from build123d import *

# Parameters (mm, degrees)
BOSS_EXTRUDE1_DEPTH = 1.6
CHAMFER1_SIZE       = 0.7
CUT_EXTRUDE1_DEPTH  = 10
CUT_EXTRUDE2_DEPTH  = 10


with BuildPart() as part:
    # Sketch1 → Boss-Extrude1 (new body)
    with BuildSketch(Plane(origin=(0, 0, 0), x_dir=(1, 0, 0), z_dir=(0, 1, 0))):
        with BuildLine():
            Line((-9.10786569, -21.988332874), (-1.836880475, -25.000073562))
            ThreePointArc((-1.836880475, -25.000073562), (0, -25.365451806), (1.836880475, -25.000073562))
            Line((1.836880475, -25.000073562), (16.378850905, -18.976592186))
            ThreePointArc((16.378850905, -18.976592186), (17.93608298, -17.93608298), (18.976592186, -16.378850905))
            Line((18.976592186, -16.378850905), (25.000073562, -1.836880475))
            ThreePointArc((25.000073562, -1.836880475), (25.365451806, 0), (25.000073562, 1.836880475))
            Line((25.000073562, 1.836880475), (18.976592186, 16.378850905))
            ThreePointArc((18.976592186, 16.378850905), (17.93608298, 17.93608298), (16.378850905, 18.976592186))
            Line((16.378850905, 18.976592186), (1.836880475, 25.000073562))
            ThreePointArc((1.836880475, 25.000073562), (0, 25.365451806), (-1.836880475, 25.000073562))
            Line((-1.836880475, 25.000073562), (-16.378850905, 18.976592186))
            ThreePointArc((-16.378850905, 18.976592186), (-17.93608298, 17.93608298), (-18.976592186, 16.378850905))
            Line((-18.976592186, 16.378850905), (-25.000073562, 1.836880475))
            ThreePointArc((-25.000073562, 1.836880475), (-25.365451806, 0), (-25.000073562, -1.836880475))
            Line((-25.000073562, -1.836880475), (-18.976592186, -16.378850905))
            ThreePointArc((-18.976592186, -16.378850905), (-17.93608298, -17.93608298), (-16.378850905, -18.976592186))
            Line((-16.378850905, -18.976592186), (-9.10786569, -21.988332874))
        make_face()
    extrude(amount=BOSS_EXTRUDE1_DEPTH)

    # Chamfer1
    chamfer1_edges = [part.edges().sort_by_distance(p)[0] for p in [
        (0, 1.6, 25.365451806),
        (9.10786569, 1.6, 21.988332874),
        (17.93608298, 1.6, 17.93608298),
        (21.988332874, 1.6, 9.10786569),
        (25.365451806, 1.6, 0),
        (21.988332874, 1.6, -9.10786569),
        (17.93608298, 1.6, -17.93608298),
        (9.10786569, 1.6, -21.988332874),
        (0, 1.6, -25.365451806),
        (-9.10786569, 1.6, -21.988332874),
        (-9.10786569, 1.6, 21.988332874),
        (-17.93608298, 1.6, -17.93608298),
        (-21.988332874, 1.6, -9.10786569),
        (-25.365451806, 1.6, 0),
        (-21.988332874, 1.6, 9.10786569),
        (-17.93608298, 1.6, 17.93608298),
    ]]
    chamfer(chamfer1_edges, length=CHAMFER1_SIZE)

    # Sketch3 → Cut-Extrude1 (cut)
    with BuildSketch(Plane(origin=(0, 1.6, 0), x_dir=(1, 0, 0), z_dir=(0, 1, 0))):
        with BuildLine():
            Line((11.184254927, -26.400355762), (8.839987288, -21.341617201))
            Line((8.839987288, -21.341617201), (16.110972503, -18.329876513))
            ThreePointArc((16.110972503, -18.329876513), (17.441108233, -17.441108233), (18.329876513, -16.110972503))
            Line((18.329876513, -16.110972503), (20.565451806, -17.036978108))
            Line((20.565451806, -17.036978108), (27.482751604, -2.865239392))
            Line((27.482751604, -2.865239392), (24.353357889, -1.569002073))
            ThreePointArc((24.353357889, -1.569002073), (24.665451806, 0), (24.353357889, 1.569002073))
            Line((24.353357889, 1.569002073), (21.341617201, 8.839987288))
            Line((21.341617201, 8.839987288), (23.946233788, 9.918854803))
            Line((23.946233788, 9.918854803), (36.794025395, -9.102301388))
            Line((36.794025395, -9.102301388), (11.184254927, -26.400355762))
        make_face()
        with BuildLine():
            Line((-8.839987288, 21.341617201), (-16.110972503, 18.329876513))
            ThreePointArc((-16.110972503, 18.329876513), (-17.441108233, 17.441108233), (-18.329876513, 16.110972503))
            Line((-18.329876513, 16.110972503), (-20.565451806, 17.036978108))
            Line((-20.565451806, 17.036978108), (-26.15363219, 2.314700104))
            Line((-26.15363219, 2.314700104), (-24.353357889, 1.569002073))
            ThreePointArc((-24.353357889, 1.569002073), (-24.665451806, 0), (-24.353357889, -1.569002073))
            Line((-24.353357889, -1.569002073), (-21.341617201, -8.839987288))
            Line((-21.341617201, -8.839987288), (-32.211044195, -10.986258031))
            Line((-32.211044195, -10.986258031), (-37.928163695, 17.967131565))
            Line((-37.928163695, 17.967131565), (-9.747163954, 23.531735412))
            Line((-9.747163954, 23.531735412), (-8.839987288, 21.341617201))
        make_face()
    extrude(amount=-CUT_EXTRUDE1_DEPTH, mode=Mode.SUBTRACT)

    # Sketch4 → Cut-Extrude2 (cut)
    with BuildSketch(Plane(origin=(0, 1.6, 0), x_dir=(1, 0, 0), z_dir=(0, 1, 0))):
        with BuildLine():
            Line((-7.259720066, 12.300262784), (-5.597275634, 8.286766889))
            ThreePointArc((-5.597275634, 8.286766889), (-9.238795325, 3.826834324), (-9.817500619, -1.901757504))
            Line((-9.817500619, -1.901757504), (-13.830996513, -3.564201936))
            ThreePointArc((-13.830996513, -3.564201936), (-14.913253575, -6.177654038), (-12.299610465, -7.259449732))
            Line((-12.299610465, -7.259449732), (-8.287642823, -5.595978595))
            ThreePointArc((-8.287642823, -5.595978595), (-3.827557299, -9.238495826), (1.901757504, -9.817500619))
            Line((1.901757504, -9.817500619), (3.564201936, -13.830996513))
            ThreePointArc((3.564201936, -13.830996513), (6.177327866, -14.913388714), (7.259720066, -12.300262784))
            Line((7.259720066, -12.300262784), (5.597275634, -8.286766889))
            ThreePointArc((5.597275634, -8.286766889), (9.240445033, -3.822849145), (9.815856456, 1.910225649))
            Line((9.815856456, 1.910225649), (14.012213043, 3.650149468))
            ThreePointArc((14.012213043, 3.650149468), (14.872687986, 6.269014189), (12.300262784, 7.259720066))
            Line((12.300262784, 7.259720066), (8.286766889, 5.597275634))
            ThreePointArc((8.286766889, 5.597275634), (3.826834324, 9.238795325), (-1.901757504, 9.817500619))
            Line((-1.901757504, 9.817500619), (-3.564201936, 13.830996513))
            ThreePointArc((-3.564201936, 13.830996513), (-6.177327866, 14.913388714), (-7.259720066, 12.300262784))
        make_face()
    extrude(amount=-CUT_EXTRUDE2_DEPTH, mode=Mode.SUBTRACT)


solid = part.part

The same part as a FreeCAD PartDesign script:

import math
import FreeCAD as App
import Part
import Sketcher
from FreeCAD import Vector
Q = App.Units.Quantity


def edges_at(feature, points):
    """Names of the edges that pass closest to the given points."""
    edges = feature.Shape.Edges
    near = lambda p: min(range(len(edges)), key=lambda i: edges[i].distToShape(Part.Vertex(*p))[0])
    return sorted({f"Edge{near(p) + 1}" for p in points})

doc = App.newDocument("Part")
body = doc.addObject("PartDesign::Body", "Body")

# Sketch on XZ plane
sketch1 = body.newObject("Sketcher::SketchObject", "Sketch")
sketch1.AttachmentSupport = (doc.getObject("XZ_Plane"), [""])
sketch1.MapMode = "FlatFace"
sketch1.addGeometry(Part.ArcOfCircle(Part.Circle(Vector(0, 20.6, 0), Vector(0, 0, 1), 4.8), math.radians(67), math.radians(113)), False)
sketch1.addGeometry(Part.LineSegment(Vector(1.8, 25, 0), Vector(16.4, 19, 0)), False)
sketch1.addGeometry(Part.ArcOfCircle(Part.Circle(Vector(14.5, 14.5, 0), Vector(0, 0, 1), 4.8), math.radians(22), math.radians(68)), False)
sketch1.addGeometry(Part.LineSegment(Vector(19, 16.4, 0), Vector(25, 1.8, 0)), False)
sketch1.addGeometry(Part.ArcOfCircle(Part.Circle(Vector(20.6, 0, 0), Vector(0, 0, 1), 4.8), math.radians(-23), math.radians(23)), False)
sketch1.addGeometry(Part.LineSegment(Vector(25, -1.8, 0), Vector(19, -16.4, 0)), False)
sketch1.addGeometry(Part.ArcOfCircle(Part.Circle(Vector(14.5, -14.5, 0), Vector(0, 0, 1), 4.8), math.radians(-68), math.radians(-22)), False)
sketch1.addGeometry(Part.LineSegment(Vector(16.4, -19, 0), Vector(1.8, -25, 0)), False)
sketch1.addGeometry(Part.ArcOfCircle(Part.Circle(Vector(0, -20.6, 0), Vector(0, 0, 1), 4.8), math.radians(-113), math.radians(-67)), False)
sketch1.addGeometry(Part.LineSegment(Vector(-1.8, -25, 0), Vector(-16.4, -19, 0)), False)
sketch1.addGeometry(Part.ArcOfCircle(Part.Circle(Vector(-14.5, -14.5, 0), Vector(0, 0, 1), 4.8), math.radians(-158), math.radians(-112)), False)
sketch1.addGeometry(Part.LineSegment(Vector(-19, -16.4, 0), Vector(-25, -1.8, 0)), False)
sketch1.addGeometry(Part.ArcOfCircle(Part.Circle(Vector(-20.6, 0, 0), Vector(0, 0, 1), 4.8), math.radians(157), math.radians(203)), False)
sketch1.addGeometry(Part.LineSegment(Vector(-25, 1.8, 0), Vector(-19, 16.4, 0)), False)
sketch1.addGeometry(Part.ArcOfCircle(Part.Circle(Vector(-14.5, 14.5, 0), Vector(0, 0, 1), 4.8), math.radians(112), math.radians(158)), False)
sketch1.addGeometry(Part.LineSegment(Vector(-16.4, 19, 0), Vector(-1.8, 25, 0)), False)
sketch1.addConstraint(Sketcher.Constraint("Tangent", 0, 1, 1, 1))
sketch1.addConstraint(Sketcher.Constraint("Tangent", 1, 2, 2, 2))
sketch1.addConstraint(Sketcher.Constraint("Tangent", 2, 1, 3, 1))
sketch1.addConstraint(Sketcher.Constraint("Tangent", 3, 2, 4, 2))
sketch1.addConstraint(Sketcher.Constraint("Tangent", 4, 1, 5, 1))
sketch1.addConstraint(Sketcher.Constraint("Tangent", 5, 2, 6, 2))
sketch1.addConstraint(Sketcher.Constraint("Tangent", 6, 1, 7, 1))
sketch1.addConstraint(Sketcher.Constraint("Tangent", 7, 2, 8, 2))
sketch1.addConstraint(Sketcher.Constraint("Tangent", 8, 1, 9, 1))
sketch1.addConstraint(Sketcher.Constraint("Tangent", 9, 2, 10, 2))
sketch1.addConstraint(Sketcher.Constraint("Tangent", 10, 1, 11, 1))
sketch1.addConstraint(Sketcher.Constraint("Tangent", 11, 2, 12, 2))
sketch1.addConstraint(Sketcher.Constraint("Tangent", 12, 1, 13, 1))
sketch1.addConstraint(Sketcher.Constraint("Tangent", 13, 2, 14, 2))
sketch1.addConstraint(Sketcher.Constraint("Tangent", 14, 1, 15, 1))
sketch1.addConstraint(Sketcher.Constraint("Tangent", 15, 2, 0, 2))
sketch1.addConstraint(Sketcher.Constraint("Equal", 0, 2))
sketch1.addConstraint(Sketcher.Constraint("Equal", 2, 4))
sketch1.addConstraint(Sketcher.Constraint("Equal", 4, 6))
sketch1.addConstraint(Sketcher.Constraint("Equal", 6, 8))
sketch1.addConstraint(Sketcher.Constraint("Equal", 8, 10))
sketch1.addConstraint(Sketcher.Constraint("Equal", 10, 12))
sketch1.addConstraint(Sketcher.Constraint("Equal", 12, 14))
sketch1.addConstraint(Sketcher.Constraint("Symmetric", 0, 3, 8, 3, -1, 1))
sketch1.addConstraint(Sketcher.Constraint("Symmetric", 2, 3, 10, 3, -1, 1))
sketch1.addConstraint(Sketcher.Constraint("Symmetric", 4, 3, 12, 3, -1, 1))
sketch1.addConstraint(Sketcher.Constraint("Symmetric", 6, 3, 14, 3, -1, 1))
sketch1.addConstraint(Sketcher.Constraint("Symmetric", 6, 3, 10, 3, -2))
sketch1.addConstraint(Sketcher.Constraint("PointOnObject", 0, 3, -2))
sketch1.addConstraint(Sketcher.Constraint("PointOnObject", 4, 3, -1))
sketch1.addConstraint(Sketcher.Constraint("Perpendicular", 1, 5))
sketch1.addConstraint(Sketcher.Constraint("Equal", 1, 3))
sketch1.addConstraint(Sketcher.Constraint("Radius", 0, 4.8))
sketch1.addConstraint(Sketcher.Constraint("Angle", 1, Q("-22.5 deg")))
sketch1.addConstraint(Sketcher.Constraint("DistanceX", 1, 2, 4, 3, 4.186601))
pad1 = body.newObject("PartDesign::Pad", "Pad")
pad1.Profile = sketch1
pad1.Length = 1.6
pad1.Reversed = True
doc.recompute()

chamfer = body.newObject("PartDesign::Chamfer", "Chamfer")
chamfer.Base = (pad1, edges_at(pad1, [
    (0, 1.6, 25.365),
    (9.108, 1.6, 21.988),
    (17.936, 1.6, 17.936),
    (21.988, 1.6, 9.108),
    (25.365, 1.6, 0),
    (21.988, 1.6, -9.108),
    (17.936, 1.6, -17.936),
    (9.108, 1.6, -21.988),
    (0, 1.6, -25.365),
    (-9.108, 1.6, -21.988),
    (-9.108, 1.6, 21.988),
    (-17.936, 1.6, -17.936),
    (-21.988, 1.6, -9.108),
    (-25.365, 1.6, 0),
    (-21.988, 1.6, 9.108),
    (-17.936, 1.6, 17.936),
]))
chamfer.Size = 0.7

# Sketch on XZ plane
sketch2 = body.newObject("Sketcher::SketchObject", "Sketch001")
sketch2.AttachmentSupport = (doc.getObject("XZ_Plane"), [""])
sketch2.MapMode = "FlatFace"
sketch2.AttachmentOffset = App.Placement(Vector(0, 0, -1.6), App.Rotation())
sketch2.addGeometry(Part.LineSegment(Vector(8.8, 21.3, 0), Vector(11.2, 26.4, 0)), False)
sketch2.addGeometry(Part.LineSegment(Vector(11.2, 26.4, 0), Vector(36.8, 9.1, 0)), False)
sketch2.addGeometry(Part.LineSegment(Vector(36.8, 9.1, 0), Vector(23.9, -9.9, 0)), False)
sketch2.addGeometry(Part.LineSegment(Vector(23.9, -9.9, 0), Vector(21.3, -8.8, 0)), False)
sketch2.addGeometry(Part.LineSegment(Vector(21.3, -8.8, 0), Vector(24.4, -1.6, 0)), False)
sketch2.addGeometry(Part.ArcOfCircle(Part.Circle(Vector(20.6, 0, 0), Vector(0, 0, 1), 4.1), math.radians(-23), math.radians(23)), False)
sketch2.addGeometry(Part.LineSegment(Vector(24.4, 1.6, 0), Vector(27.5, 2.9, 0)), False)
sketch2.addGeometry(Part.LineSegment(Vector(27.5, 2.9, 0), Vector(20.6, 17, 0)), False)
sketch2.addGeometry(Part.LineSegment(Vector(20.6, 17, 0), Vector(18.3, 16.1, 0)), False)
sketch2.addGeometry(Part.ArcOfCircle(Part.Circle(Vector(14.5, 14.5, 0), Vector(0, 0, 1), 4.1), math.radians(22), math.radians(68)), False)
sketch2.addGeometry(Part.LineSegment(Vector(16.1, 18.3, 0), Vector(8.8, 21.3, 0)), False)
sketch2.addGeometry(Part.LineSegment(Vector(-16.1, -18.3, 0), Vector(-8.8, -21.3, 0)), False)
sketch2.addGeometry(Part.LineSegment(Vector(-8.8, -21.3, 0), Vector(-9.7, -23.5, 0)), False)
sketch2.addGeometry(Part.LineSegment(Vector(-9.7, -23.5, 0), Vector(-37.9, -18, 0)), False)
sketch2.addGeometry(Part.LineSegment(Vector(-37.9, -18, 0), Vector(-32.2, 11, 0)), False)
sketch2.addGeometry(Part.LineSegment(Vector(-32.2, 11, 0), Vector(-21.3, 8.8, 0)), False)
sketch2.addGeometry(Part.LineSegment(Vector(-21.3, 8.8, 0), Vector(-24.4, 1.6, 0)), False)
sketch2.addGeometry(Part.ArcOfCircle(Part.Circle(Vector(-20.6, 0, 0), Vector(0, 0, 1), 4.1), math.radians(157), math.radians(203)), False)
sketch2.addGeometry(Part.LineSegment(Vector(-24.4, -1.6, 0), Vector(-26.2, -2.3, 0)), False)
sketch2.addGeometry(Part.LineSegment(Vector(-26.2, -2.3, 0), Vector(-20.6, -17, 0)), False)
sketch2.addGeometry(Part.LineSegment(Vector(-20.6, -17, 0), Vector(-18.3, -16.1, 0)), False)
sketch2.addGeometry(Part.ArcOfCircle(Part.Circle(Vector(-14.5, -14.5, 0), Vector(0, 0, 1), 4.1), math.radians(-158), math.radians(-112)), False)
sketch2.addConstraint(Sketcher.Constraint("Coincident", 0, 2, 1, 1))
sketch2.addConstraint(Sketcher.Constraint("Coincident", 1, 2, 2, 1))
sketch2.addConstraint(Sketcher.Constraint("Coincident", 2, 2, 3, 1))
sketch2.addConstraint(Sketcher.Constraint("Coincident", 3, 2, 4, 1))
sketch2.addConstraint(Sketcher.Constraint("Tangent", 4, 2, 5, 1))
sketch2.addConstraint(Sketcher.Constraint("Coincident", 5, 2, 6, 1))
sketch2.addConstraint(Sketcher.Constraint("Coincident", 6, 2, 7, 1))
sketch2.addConstraint(Sketcher.Constraint("Coincident", 7, 2, 8, 1))
sketch2.addConstraint(Sketcher.Constraint("Coincident", 8, 2, 9, 1))
sketch2.addConstraint(Sketcher.Constraint("Tangent", 9, 2, 10, 1))
sketch2.addConstraint(Sketcher.Constraint("Coincident", 10, 2, 0, 1))
sketch2.addConstraint(Sketcher.Constraint("Coincident", 11, 2, 12, 1))
sketch2.addConstraint(Sketcher.Constraint("Coincident", 12, 2, 13, 1))
sketch2.addConstraint(Sketcher.Constraint("Coincident", 13, 2, 14, 1))
sketch2.addConstraint(Sketcher.Constraint("Coincident", 14, 2, 15, 1))
sketch2.addConstraint(Sketcher.Constraint("Coincident", 15, 2, 16, 1))
sketch2.addConstraint(Sketcher.Constraint("Tangent", 16, 2, 17, 1))
sketch2.addConstraint(Sketcher.Constraint("Coincident", 17, 2, 18, 1))
sketch2.addConstraint(Sketcher.Constraint("Coincident", 18, 2, 19, 1))
sketch2.addConstraint(Sketcher.Constraint("Coincident", 19, 2, 20, 1))
sketch2.addConstraint(Sketcher.Constraint("Coincident", 20, 2, 21, 1))
sketch2.addConstraint(Sketcher.Constraint("Tangent", 21, 2, 11, 1))
sketch2.addConstraint(Sketcher.Constraint("Equal", 5, 9))
sketch2.addConstraint(Sketcher.Constraint("Equal", 9, 17))
sketch2.addConstraint(Sketcher.Constraint("Equal", 17, 21))
sketch2.addConstraint(Sketcher.Constraint("Symmetric", 5, 3, 17, 3, -1, 1))
sketch2.addConstraint(Sketcher.Constraint("Symmetric", 9, 3, 21, 3, -1, 1))
sketch2.addConstraint(Sketcher.Constraint("Symmetric", 10, 2, 11, 2, -1, 1))
sketch2.addConstraint(Sketcher.Constraint("Symmetric", 3, 2, 15, 2, -1, 1))
sketch2.addConstraint(Sketcher.Constraint("Symmetric", 7, 2, 19, 2, -1, 1))
sketch2.addConstraint(Sketcher.Constraint("Symmetric", 5, 2, 16, 2, -2))
sketch2.addConstraint(Sketcher.Constraint("Perpendicular", 1, 2))
sketch2.addConstraint(Sketcher.Constraint("Perpendicular", 3, 4))
sketch2.addConstraint(Sketcher.Constraint("Parallel", 6, 8))
sketch2.addConstraint(Sketcher.Constraint("Perpendicular", 4, 10))
sketch2.addConstraint(Sketcher.Constraint("Perpendicular", 11, 12))
sketch2.addConstraint(Sketcher.Constraint("Perpendicular", 13, 14))
sketch2.addConstraint(Sketcher.Constraint("Perpendicular", 14, 15))
sketch2.addConstraint(Sketcher.Constraint("Parallel", 8, 18))
sketch2.addConstraint(Sketcher.Constraint("Parallel", 18, 20))
sketch2.addConstraint(Sketcher.Constraint("Horizontal", 4, 2, 17, 2))
sketch2.addConstraint(Sketcher.Constraint("Vertical", 5, 3, 7, 2))
sketch2.addConstraint(Sketcher.Constraint("Equal", 4, 10))
sketch2.addConstraint(Sketcher.Constraint("Radius", 5, 4.1))
sketch2.addConstraint(Sketcher.Constraint("Angle", 3, Q("157.5 deg")))
sketch2.addConstraint(Sketcher.Constraint("Angle", 6, Q("22.5 deg")))
sketch2.addConstraint(Sketcher.Constraint("DistanceX", 13, 2, 12, 2, 28.181))
sketch2.addConstraint(Sketcher.Constraint("Distance", 15, 11.079301))
sketch2.addConstraint(Sketcher.Constraint("DistanceY", -1, 1, 1, 2, 9.102301))
sketch2.addConstraint(Sketcher.Constraint("DistanceY", 18, 2, -1, 1, 2.3147))
sketch2.addConstraint(Sketcher.Constraint("DistanceX", 5, 3, 6, 2, 6.9173))
sketch2.addConstraint(Sketcher.Constraint("DistanceY", 7, 2, 9, 2, 1.292898))
sketch2.addConstraint(Sketcher.Constraint("Distance", 0, 5.57552))
sketch2.addConstraint(Sketcher.Constraint("Distance", 2, 22.953652))
sketch2.addConstraint(Sketcher.Constraint("Distance", 7, 15.76982))
sketch2.addConstraint(Sketcher.Constraint("Distance", 8, 2.419769))
sketch2.addConstraint(Sketcher.Constraint("Distance", 13, 28.725138))
sketch2.addConstraint(Sketcher.Constraint("Distance", 14, 29.512442))
sketch2.addConstraint(Sketcher.Constraint("DistanceX", -1, 1, 5, 3, 20.565452))
sketch2.addConstraint(Sketcher.Constraint("DistanceX", 0, 2, 1, 2, 25.60977))
pocket1 = body.newObject("PartDesign::Pocket", "Pocket")
pocket1.Profile = sketch2
pocket1.Length = 10
pocket1.Reversed = True

# Sketch on XZ plane
sketch3 = body.newObject("Sketcher::SketchObject", "Sketch002")
sketch3.AttachmentSupport = (doc.getObject("XZ_Plane"), [""])
sketch3.MapMode = "FlatFace"
sketch3.AttachmentOffset = App.Placement(Vector(0, 0, -1.6), App.Rotation())
sketch3.addGeometry(Part.LineSegment(Vector(-7.3, -12.3, 0), Vector(-5.6, -8.3, 0)), False)
sketch3.addGeometry(Part.ArcOfCircle(Part.Circle(Vector(0, 0, 0), Vector(0, 0, 1), 10), math.radians(169), math.radians(236)), False)
sketch3.addGeometry(Part.LineSegment(Vector(-9.8, 1.9, 0), Vector(-13.8, 3.6, 0)), False)
sketch3.addGeometry(Part.ArcOfCircle(Part.Circle(Vector(-13.1, 5.4, 0), Vector(0, 0, 1), 2), math.radians(67), math.radians(248)), False)
sketch3.addGeometry(Part.LineSegment(Vector(-12.3, 7.3, 0), Vector(-8.3, 5.6, 0)), False)
sketch3.addGeometry(Part.ArcOfCircle(Part.Circle(Vector(0, 0, 0), Vector(0, 0, 1), 10), math.radians(79), math.radians(146)), False)
sketch3.addGeometry(Part.LineSegment(Vector(1.9, 9.8, 0), Vector(3.6, 13.8, 0)), False)
sketch3.addGeometry(Part.ArcOfCircle(Part.Circle(Vector(5.4, 13.1, 0), Vector(0, 0, 1), 2), math.radians(-23), math.radians(158)), False)
sketch3.addGeometry(Part.LineSegment(Vector(7.3, 12.3, 0), Vector(5.6, 8.3, 0)), False)
sketch3.addGeometry(Part.ArcOfCircle(Part.Circle(Vector(0, 0, 0), Vector(0, 0, 1), 10), math.radians(-11), math.radians(56)), False)
sketch3.addGeometry(Part.LineSegment(Vector(9.8, -1.9, 0), Vector(14, -3.7, 0)), False)
sketch3.addGeometry(Part.ArcOfCircle(Part.Circle(Vector(13.1, -5.4, 0), Vector(0, 0, 1), 2), math.radians(-113), math.radians(62)), False)
sketch3.addGeometry(Part.LineSegment(Vector(12.3, -7.3, 0), Vector(8.3, -5.6, 0)), False)
sketch3.addGeometry(Part.ArcOfCircle(Part.Circle(Vector(0, 0, 0), Vector(0, 0, 1), 10), math.radians(-101), math.radians(-34)), False)
sketch3.addGeometry(Part.LineSegment(Vector(-1.9, -9.8, 0), Vector(-3.6, -13.8, 0)), False)
sketch3.addGeometry(Part.ArcOfCircle(Part.Circle(Vector(-5.4, -13.1, 0), Vector(0, 0, 1), 2), math.radians(157), math.radians(338)), False)
sketch3.addConstraint(Sketcher.Constraint("Coincident", 0, 2, 1, 2))
sketch3.addConstraint(Sketcher.Constraint("Coincident", 1, 1, 2, 1))
sketch3.addConstraint(Sketcher.Constraint("Tangent", 2, 2, 3, 2))
sketch3.addConstraint(Sketcher.Constraint("Tangent", 3, 1, 4, 1))
sketch3.addConstraint(Sketcher.Constraint("Coincident", 4, 2, 5, 2))
sketch3.addConstraint(Sketcher.Constraint("Coincident", 5, 1, 6, 1))
sketch3.addConstraint(Sketcher.Constraint("Tangent", 6, 2, 7, 2))
sketch3.addConstraint(Sketcher.Constraint("Tangent", 7, 1, 8, 1))
sketch3.addConstraint(Sketcher.Constraint("Coincident", 8, 2, 9, 2))
sketch3.addConstraint(Sketcher.Constraint("Coincident", 9, 1, 10, 1))
sketch3.addConstraint(Sketcher.Constraint("Coincident", 10, 2, 11, 2))
sketch3.addConstraint(Sketcher.Constraint("Tangent", 11, 1, 12, 1))
sketch3.addConstraint(Sketcher.Constraint("Coincident", 12, 2, 13, 2))
sketch3.addConstraint(Sketcher.Constraint("Coincident", 13, 1, 14, 1))
sketch3.addConstraint(Sketcher.Constraint("Tangent", 14, 2, 15, 2))
sketch3.addConstraint(Sketcher.Constraint("Tangent", 15, 1, 0, 1))
sketch3.addConstraint(Sketcher.Constraint("Coincident", 1, 3, -1, 1))
sketch3.addConstraint(Sketcher.Constraint("Coincident", 5, 3, -1, 1))
sketch3.addConstraint(Sketcher.Constraint("Coincident", 9, 3, -1, 1))
sketch3.addConstraint(Sketcher.Constraint("Coincident", 13, 3, -1, 1))
sketch3.addConstraint(Sketcher.Constraint("Equal", 1, 5))
sketch3.addConstraint(Sketcher.Constraint("Equal", 3, 7))
sketch3.addConstraint(Sketcher.Constraint("Equal", 5, 9))
sketch3.addConstraint(Sketcher.Constraint("Equal", 7, 11))
sketch3.addConstraint(Sketcher.Constraint("Equal", 9, 13))
sketch3.addConstraint(Sketcher.Constraint("Equal", 11, 15))
sketch3.addConstraint(Sketcher.Constraint("Symmetric", 3, 3, 11, 3, -1, 1))
sketch3.addConstraint(Sketcher.Constraint("Symmetric", 7, 3, 15, 3, -1, 1))
sketch3.addConstraint(Sketcher.Constraint("Perpendicular", 0, 2))
sketch3.addConstraint(Sketcher.Constraint("Perpendicular", 2, 6))
sketch3.addConstraint(Sketcher.Constraint("Parallel", 6, 8))
sketch3.addConstraint(Sketcher.Constraint("Parallel", 4, 10))
sketch3.addConstraint(Sketcher.Constraint("Perpendicular", 8, 12))
sketch3.addConstraint(Sketcher.Constraint("Perpendicular", 12, 14))
sketch3.addConstraint(Sketcher.Constraint("Equal", 0, 2))
sketch3.addConstraint(Sketcher.Constraint("Equal", 2, 6))
sketch3.addConstraint(Sketcher.Constraint("Equal", 8, 12))
sketch3.addConstraint(Sketcher.Constraint("Radius", 1, 10.0))
sketch3.addConstraint(Sketcher.Constraint("Radius", 3, 2.0))
sketch3.addConstraint(Sketcher.Constraint("Angle", 0, Q("67.5 deg")))
sketch3.addConstraint(Sketcher.Constraint("DistanceY", -1, 1, 2, 2, 3.564202))
sketch3.addConstraint(Sketcher.Constraint("Distance", 10, 4.542768))
sketch3.addConstraint(Sketcher.Constraint("DistanceX", 3, 1, -1, 1, 12.29961))
pocket2 = body.newObject("PartDesign::Pocket", "Pocket001")
pocket2.Profile = sketch3
pocket2.Length = 10
pocket2.Reversed = True

doc.recompute()
